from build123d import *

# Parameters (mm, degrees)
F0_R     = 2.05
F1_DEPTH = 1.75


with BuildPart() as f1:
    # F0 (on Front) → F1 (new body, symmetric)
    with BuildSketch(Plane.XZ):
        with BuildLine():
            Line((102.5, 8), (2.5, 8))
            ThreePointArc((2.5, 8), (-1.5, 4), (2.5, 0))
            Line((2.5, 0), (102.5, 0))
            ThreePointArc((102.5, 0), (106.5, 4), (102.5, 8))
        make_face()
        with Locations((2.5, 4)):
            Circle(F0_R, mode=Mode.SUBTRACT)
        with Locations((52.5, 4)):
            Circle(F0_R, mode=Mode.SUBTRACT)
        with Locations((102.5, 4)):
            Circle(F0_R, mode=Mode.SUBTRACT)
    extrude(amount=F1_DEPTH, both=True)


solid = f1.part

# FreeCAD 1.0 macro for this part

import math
import FreeCAD as App
import Part
import Sketcher

doc = App.newDocument("Part")
body = doc.addObject("PartDesign::Body", "Body")

sketch1 = body.newObject("Sketcher::SketchObject", "Sketch")
sketch1.AttachmentSupport = (doc.getObject("XZ_Plane"), [""])
sketch1.MapMode = "FlatFace"
sketch1.addGeometry([
    Part.LineSegment(App.Vector(102.5, 8, 0), App.Vector(2.5, 8, 0)),
    Part.ArcOfCircle(Part.Circle(App.Vector(2.5, 4, 0), App.Vector(0, 0, 1), 4), math.radians(90), math.radians(270)),
    Part.LineSegment(App.Vector(2.5, 0, 0), App.Vector(102.5, 0, 0)),
    Part.ArcOfCircle(Part.Circle(App.Vector(102.5, 4, 0), App.Vector(0, 0, 1), 4), math.radians(-90), math.radians(90)),
    Part.Circle(App.Vector(2.5, 4, 0), App.Vector(0, 0, 1), 2.05),
    Part.Circle(App.Vector(52.5, 4, 0), App.Vector(0, 0, 1), 2.05),
    Part.Circle(App.Vector(102.5, 4, 0), App.Vector(0, 0, 1), 2.05),
], False)
sketch1.addConstraint([
    Sketcher.Constraint("Tangent", 0, 2, 1, 1),
    Sketcher.Constraint("Tangent", 1, 2, 2, 1),
    Sketcher.Constraint("Tangent", 2, 2, 3, 1),
    Sketcher.Constraint("Tangent", 3, 2, 0, 1),
    Sketcher.Constraint("Horizontal", 0),
    Sketcher.Constraint("Horizontal", 2),
    Sketcher.Constraint("Coincident", 4, 3, 1, 3),
    Sketcher.Constraint("Coincident", 6, 3, 3, 3),
    Sketcher.Constraint("Equal", 4, 5),
    Sketcher.Constraint("Equal", 5, 6),
    Sketcher.Constraint("PointOnObject", 1, 2, -1),
    Sketcher.Constraint("Horizontal", 4, 3, 5, 3),
    Sketcher.Constraint("Radius", 1, 4.0),
    Sketcher.Constraint("Diameter", 4, 4.1),
    Sketcher.Constraint("DistanceX", 0, 2, 0, 1, 100.0),
    Sketcher.Constraint("DistanceX", 1, 3, 5, 3, 50.0),
    Sketcher.Constraint("DistanceX", -1, 1, 1, 3, 2.5),
])
pad1 = body.newObject("PartDesign::Pad", "Pad")
pad1.Profile = sketch1
pad1.Length = 3.5
pad1.Midplane = True

doc.recompute()
